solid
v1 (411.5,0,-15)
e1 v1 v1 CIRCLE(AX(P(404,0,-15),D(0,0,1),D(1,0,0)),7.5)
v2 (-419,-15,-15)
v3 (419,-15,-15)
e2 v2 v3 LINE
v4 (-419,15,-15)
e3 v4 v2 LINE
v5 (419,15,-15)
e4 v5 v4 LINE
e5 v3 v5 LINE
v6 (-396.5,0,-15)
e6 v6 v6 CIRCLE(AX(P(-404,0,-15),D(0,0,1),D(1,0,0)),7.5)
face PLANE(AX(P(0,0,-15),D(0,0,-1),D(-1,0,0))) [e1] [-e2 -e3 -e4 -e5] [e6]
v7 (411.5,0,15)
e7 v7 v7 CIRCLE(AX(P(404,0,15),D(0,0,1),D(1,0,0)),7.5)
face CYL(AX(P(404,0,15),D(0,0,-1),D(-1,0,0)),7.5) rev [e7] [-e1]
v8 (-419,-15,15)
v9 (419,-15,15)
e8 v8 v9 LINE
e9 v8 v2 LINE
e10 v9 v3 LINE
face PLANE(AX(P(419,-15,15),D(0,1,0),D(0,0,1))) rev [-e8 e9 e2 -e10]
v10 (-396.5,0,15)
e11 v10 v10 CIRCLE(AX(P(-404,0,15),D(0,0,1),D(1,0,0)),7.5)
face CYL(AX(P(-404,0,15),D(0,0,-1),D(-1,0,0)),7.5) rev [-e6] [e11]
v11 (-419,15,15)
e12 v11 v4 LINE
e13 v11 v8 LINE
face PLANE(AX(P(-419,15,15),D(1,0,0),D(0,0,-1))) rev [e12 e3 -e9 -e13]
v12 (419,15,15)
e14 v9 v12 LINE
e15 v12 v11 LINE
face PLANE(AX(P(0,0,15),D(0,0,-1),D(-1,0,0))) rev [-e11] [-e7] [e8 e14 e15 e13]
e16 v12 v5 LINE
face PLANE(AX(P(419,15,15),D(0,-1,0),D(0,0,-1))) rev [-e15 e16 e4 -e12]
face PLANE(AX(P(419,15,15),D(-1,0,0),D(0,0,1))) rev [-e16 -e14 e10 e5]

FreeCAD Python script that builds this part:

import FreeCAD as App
import Part
import Sketcher

V = App.Vector
Q = App.Units.Quantity


def add_polygon(sketch, points):
    """Adds a closed chain of lines whose ends are joined by coincident constraints."""
    first, n = sketch.GeometryCount, len(points)
    for a, b in zip(points, points[1:] + points[:1]):
        sketch.addGeometry(Part.LineSegment(App.Vector(*a, 0), App.Vector(*b, 0)), False)
    for i in range(n):
        sketch.addConstraint(Sketcher.Constraint("Coincident", first + i, 2, first + (i + 1) % n, 1))

doc = App.newDocument("Part")
body = doc.addObject("PartDesign::Body", "Body")

# Sketch on XY plane
sketch1 = body.newObject("Sketcher::SketchObject", "Sketch")
sketch1.AttachmentSupport = (doc.getObject("XY_Plane"), [""])
sketch1.MapMode = "FlatFace"
add_polygon(sketch1, [(-419, 15), (-419, -15), (419, -15), (419, 15)])  # lines 0-3
sketch1.addGeometry(Part.Circle(V(-404, 0, 0), V(0, 0, 1), 7.5), False)  # 4
sketch1.addGeometry(Part.Circle(V(404, 0, 0), V(0, 0, 1), 7.5), False)  # 5
sketch1.addConstraint(Sketcher.Constraint("Vertical", 0))
sketch1.addConstraint(Sketcher.Constraint("Horizontal", 1))
sketch1.addConstraint(Sketcher.Constraint("Vertical", 2))
sketch1.addConstraint(Sketcher.Constraint("Horizontal", 3))
sketch1.addConstraint(Sketcher.Constraint("Equal", 4, 5))
sketch1.addConstraint(Sketcher.Constraint("Symmetric", 4, 3, 5, 3, -1, 1))
sketch1.addConstraint(Sketcher.Constraint("Symmetric", 0, 2, 2, 2, -1, 1))
sketch1.addConstraint(Sketcher.Constraint("PointOnObject", 4, 3, -1))
sketch1.addConstraint(Sketcher.Constraint("Diameter", 4, Q("15 mm")))
sketch1.addConstraint(Sketcher.Constraint("DistanceX", 1, 1, 1, 2, Q("838 mm")))
sketch1.addConstraint(Sketcher.Constraint("DistanceY", 0, 2, 0, 1, Q("30 mm")))
sketch1.addConstraint(Sketcher.Constraint("DistanceX", 4, 3, -1, 1, Q("404 mm")))
pad1 = body.newObject("PartDesign::Pad", "Pad")
pad1.Profile = sketch1
pad1.Length = 30
pad1.Midplane = True

doc.recompute()
